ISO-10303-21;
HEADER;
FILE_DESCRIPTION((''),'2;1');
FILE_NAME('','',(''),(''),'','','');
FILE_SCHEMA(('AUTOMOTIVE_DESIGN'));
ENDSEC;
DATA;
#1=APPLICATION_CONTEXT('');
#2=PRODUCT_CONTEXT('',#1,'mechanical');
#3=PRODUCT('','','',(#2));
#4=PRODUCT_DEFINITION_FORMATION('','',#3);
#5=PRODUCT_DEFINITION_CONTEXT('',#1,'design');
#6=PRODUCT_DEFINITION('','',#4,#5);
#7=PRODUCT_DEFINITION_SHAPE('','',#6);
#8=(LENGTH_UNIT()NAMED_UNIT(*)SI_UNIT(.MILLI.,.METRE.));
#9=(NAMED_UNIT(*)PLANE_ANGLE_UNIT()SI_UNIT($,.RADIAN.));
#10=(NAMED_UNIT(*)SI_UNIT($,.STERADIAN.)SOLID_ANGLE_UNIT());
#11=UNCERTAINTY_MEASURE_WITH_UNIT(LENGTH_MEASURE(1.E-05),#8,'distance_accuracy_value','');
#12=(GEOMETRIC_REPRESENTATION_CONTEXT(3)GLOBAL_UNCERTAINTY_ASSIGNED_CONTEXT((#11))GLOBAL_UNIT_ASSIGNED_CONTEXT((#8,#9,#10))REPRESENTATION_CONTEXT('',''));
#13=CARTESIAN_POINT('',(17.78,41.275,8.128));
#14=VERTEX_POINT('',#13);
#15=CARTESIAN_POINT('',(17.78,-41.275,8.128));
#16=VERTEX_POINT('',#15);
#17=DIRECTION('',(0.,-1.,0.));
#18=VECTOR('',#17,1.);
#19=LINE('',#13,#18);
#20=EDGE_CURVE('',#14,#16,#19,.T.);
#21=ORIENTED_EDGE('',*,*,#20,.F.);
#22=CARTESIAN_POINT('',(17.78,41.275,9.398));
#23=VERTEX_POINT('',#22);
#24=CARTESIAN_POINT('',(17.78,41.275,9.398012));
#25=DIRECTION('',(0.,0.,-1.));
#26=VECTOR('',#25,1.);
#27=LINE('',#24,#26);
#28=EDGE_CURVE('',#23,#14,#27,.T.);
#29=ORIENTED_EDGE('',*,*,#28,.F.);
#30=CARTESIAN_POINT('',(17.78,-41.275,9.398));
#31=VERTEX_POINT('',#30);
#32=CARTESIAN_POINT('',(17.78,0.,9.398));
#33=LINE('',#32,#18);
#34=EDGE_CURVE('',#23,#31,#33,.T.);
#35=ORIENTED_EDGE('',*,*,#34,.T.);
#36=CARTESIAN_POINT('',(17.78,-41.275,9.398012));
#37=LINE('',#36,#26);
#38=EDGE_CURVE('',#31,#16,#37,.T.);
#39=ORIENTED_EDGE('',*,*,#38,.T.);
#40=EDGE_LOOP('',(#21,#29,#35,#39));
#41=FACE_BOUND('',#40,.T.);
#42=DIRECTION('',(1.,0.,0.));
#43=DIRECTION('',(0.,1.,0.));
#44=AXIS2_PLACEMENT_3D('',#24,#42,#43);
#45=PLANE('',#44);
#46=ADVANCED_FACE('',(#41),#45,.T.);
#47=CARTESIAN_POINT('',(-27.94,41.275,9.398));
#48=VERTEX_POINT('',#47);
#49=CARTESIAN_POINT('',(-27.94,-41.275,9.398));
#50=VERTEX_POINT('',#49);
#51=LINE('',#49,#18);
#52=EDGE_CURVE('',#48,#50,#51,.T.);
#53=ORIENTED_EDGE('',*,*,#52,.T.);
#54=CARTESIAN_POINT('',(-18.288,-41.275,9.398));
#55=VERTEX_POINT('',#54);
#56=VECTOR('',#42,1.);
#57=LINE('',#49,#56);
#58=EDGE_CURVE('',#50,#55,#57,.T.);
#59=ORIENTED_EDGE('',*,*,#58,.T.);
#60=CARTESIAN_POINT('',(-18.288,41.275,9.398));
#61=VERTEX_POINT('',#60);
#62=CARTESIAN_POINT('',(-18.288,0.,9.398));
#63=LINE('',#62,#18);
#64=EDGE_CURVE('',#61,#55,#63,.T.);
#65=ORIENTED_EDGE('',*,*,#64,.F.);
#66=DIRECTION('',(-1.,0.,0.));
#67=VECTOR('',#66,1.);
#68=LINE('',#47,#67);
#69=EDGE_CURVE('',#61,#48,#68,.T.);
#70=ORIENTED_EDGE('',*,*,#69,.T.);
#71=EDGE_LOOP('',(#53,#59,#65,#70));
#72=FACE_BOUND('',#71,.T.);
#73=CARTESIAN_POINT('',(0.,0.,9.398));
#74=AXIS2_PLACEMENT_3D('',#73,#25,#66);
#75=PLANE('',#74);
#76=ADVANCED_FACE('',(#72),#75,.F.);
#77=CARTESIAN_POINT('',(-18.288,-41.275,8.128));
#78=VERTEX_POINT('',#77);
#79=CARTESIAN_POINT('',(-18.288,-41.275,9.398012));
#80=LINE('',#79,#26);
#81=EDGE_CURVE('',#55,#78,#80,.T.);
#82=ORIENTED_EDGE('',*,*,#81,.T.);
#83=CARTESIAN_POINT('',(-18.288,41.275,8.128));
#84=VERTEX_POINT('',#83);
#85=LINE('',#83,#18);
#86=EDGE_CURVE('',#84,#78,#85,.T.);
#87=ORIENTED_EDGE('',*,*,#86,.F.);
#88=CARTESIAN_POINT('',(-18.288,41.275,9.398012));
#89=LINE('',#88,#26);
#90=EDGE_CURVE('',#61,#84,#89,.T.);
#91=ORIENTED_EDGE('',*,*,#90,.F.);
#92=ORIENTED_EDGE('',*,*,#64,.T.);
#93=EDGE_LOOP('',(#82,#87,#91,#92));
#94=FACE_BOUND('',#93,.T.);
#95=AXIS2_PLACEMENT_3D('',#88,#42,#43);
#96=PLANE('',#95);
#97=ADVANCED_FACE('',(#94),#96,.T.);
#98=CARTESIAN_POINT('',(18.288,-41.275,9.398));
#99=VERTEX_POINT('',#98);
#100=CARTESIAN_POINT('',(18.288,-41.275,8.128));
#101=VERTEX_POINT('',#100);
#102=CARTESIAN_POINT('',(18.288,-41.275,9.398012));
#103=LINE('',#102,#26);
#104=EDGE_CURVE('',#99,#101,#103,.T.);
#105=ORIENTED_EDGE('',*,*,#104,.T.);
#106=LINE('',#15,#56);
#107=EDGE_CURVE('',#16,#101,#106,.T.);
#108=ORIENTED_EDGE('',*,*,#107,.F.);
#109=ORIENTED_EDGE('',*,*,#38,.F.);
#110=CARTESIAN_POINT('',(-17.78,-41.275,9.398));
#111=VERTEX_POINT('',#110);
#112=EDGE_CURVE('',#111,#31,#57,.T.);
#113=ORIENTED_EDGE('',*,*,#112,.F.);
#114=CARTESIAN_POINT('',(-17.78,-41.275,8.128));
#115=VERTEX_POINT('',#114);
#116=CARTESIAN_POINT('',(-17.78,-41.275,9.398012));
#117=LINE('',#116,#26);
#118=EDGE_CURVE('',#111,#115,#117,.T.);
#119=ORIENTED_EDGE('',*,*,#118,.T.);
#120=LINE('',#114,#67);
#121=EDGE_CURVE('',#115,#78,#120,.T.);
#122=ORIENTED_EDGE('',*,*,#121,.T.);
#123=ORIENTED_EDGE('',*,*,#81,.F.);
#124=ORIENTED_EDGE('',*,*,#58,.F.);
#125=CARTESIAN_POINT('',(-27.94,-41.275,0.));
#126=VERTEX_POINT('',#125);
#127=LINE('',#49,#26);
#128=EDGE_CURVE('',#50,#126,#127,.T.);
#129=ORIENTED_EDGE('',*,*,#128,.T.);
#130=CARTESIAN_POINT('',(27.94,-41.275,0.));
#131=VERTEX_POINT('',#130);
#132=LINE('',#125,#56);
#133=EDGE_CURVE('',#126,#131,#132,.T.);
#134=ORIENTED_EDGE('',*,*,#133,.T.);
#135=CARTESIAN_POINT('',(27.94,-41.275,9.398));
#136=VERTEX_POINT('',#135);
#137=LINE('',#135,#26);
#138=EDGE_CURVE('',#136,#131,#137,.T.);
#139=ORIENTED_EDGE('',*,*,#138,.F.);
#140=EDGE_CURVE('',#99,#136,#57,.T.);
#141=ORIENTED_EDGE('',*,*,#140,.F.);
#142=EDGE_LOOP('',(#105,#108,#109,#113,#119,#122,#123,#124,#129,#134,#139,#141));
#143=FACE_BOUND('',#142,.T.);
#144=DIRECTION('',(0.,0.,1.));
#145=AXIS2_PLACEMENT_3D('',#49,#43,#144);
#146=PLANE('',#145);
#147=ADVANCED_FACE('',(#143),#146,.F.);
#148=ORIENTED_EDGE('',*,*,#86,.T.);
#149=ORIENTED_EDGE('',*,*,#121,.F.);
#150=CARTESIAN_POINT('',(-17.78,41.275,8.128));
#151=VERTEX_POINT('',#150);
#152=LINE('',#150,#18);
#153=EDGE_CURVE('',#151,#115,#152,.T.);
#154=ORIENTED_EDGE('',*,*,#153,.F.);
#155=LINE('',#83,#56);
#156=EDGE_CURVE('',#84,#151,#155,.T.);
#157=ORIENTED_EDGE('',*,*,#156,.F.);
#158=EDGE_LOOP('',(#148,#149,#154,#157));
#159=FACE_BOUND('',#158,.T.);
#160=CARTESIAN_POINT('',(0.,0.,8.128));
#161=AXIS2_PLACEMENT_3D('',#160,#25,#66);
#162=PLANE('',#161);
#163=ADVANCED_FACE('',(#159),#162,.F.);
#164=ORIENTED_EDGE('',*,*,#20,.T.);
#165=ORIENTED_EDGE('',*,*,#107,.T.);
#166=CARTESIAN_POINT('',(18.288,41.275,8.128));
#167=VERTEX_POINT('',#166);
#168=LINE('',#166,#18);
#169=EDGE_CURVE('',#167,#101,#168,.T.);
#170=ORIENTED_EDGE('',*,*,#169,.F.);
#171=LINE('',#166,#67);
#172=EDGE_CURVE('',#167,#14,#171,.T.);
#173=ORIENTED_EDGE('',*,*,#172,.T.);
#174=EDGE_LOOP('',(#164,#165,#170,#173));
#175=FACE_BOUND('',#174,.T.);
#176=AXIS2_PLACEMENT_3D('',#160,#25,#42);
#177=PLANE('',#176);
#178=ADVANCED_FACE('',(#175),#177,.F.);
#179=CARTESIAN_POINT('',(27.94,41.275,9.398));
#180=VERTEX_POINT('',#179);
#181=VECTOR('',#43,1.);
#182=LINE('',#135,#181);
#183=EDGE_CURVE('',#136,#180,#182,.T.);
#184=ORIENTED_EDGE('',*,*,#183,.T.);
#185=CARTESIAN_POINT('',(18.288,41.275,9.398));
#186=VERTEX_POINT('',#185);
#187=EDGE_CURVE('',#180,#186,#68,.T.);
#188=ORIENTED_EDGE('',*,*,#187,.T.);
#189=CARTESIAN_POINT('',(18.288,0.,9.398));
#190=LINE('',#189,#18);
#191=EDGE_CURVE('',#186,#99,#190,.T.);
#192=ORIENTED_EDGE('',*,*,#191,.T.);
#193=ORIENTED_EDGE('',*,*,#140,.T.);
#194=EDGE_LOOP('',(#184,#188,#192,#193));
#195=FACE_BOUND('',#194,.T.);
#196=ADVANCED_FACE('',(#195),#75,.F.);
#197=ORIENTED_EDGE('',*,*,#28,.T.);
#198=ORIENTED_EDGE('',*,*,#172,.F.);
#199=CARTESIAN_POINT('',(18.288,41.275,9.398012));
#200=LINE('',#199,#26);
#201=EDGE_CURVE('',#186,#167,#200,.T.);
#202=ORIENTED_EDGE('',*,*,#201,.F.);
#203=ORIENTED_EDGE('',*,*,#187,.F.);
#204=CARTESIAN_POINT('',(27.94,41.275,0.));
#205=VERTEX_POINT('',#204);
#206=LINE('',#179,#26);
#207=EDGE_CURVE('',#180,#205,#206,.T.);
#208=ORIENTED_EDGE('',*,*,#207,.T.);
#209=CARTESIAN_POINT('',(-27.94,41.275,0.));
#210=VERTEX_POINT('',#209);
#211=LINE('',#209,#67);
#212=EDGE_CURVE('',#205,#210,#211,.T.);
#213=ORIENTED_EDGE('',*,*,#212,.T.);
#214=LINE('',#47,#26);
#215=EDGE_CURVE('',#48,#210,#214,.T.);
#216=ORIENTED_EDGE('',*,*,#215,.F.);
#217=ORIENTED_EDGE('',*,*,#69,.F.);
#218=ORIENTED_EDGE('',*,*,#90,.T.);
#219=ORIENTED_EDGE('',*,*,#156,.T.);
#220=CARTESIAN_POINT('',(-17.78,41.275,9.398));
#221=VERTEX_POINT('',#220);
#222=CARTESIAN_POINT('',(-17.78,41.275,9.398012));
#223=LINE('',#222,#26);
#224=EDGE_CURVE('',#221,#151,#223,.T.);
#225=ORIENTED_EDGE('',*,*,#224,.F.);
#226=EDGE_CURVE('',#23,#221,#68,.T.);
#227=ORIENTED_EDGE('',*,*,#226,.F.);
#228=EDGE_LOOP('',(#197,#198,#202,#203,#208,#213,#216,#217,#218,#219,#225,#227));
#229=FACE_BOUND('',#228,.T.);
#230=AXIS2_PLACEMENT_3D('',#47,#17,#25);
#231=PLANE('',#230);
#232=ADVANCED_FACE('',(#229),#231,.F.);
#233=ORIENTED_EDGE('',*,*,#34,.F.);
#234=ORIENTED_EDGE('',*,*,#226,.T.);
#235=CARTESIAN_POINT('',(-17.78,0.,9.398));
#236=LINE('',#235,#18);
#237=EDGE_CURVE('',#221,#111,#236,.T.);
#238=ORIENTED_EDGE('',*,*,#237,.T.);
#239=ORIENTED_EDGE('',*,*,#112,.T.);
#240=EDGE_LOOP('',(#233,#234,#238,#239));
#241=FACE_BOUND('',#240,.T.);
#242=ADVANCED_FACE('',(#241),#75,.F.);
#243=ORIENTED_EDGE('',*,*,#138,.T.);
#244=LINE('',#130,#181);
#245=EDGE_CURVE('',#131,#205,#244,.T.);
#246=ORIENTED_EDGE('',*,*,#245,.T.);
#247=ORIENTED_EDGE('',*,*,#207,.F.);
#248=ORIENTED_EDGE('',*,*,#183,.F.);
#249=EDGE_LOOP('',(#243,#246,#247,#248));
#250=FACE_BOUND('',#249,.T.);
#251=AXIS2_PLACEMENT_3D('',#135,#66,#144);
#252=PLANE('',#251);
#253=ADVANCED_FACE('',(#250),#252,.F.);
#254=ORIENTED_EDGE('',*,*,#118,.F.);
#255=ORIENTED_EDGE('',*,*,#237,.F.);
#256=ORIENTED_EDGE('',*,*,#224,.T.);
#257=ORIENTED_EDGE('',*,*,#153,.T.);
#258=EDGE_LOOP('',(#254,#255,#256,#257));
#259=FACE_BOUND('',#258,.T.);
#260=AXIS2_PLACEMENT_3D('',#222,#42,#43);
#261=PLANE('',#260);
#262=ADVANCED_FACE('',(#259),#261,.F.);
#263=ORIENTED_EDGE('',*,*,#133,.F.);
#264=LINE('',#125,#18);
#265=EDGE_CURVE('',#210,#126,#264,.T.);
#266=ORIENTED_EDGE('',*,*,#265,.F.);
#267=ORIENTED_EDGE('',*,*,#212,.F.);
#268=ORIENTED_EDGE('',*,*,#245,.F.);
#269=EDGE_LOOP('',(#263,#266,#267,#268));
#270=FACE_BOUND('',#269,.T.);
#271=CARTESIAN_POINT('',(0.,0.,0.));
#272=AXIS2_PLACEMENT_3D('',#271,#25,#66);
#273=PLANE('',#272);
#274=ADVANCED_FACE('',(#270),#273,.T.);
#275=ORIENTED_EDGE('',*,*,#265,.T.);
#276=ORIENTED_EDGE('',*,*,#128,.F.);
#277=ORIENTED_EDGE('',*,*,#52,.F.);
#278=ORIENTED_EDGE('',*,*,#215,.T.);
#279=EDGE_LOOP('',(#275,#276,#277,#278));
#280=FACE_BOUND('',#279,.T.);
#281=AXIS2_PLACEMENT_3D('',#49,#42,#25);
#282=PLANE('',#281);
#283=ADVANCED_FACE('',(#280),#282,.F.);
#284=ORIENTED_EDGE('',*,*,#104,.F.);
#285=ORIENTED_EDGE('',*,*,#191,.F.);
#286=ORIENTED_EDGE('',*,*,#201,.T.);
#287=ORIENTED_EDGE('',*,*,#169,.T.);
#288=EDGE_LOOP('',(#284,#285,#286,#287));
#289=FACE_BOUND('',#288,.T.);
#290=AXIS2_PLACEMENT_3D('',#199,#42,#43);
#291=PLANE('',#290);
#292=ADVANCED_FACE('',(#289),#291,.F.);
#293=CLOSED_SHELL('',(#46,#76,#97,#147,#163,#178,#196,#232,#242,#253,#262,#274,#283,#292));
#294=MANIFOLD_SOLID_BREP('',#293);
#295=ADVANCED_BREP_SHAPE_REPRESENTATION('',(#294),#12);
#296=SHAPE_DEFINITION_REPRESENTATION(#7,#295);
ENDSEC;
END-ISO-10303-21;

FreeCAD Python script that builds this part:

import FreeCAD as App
import Part
import Sketcher
Q = App.Units.Quantity

doc = App.newDocument("Part")
body = doc.addObject("PartDesign::Body", "Body")

# Sketch on XY plane
sketch1 = doc.addObject("Sketcher::SketchObject", "Sketch")
body.addObject(sketch1)
sketch1.AttachmentSupport = (doc.XY_Plane, [""])
sketch1.MapMode = "FlatFace"
sketch1.addGeometry([
    Part.LineSegment(App.Vector(-28, 41, 0), App.Vector(-28, -41, 0)),
    Part.LineSegment(App.Vector(-28, -41, 0), App.Vector(28, -41, 0)),
    Part.LineSegment(App.Vector(28, -41, 0), App.Vector(28, 41, 0)),
    Part.LineSegment(App.Vector(28, 41, 0), App.Vector(-28, 41, 0)),
], False)
sketch1.addConstraint([
    Sketcher.Constraint("Coincident", 0, 2, 1, 1),
    Sketcher.Constraint("Coincident", 1, 2, 2, 1),
    Sketcher.Constraint("Coincident", 2, 2, 3, 1),
    Sketcher.Constraint("Coincident", 3, 2, 0, 1),
    Sketcher.Constraint("Vertical", 0),
    Sketcher.Constraint("Horizontal", 1),
    Sketcher.Constraint("Vertical", 2),
    Sketcher.Constraint("Horizontal", 3),
    Sketcher.Constraint("Symmetric", 0, 2, 2, 2, -1, 1),
    Sketcher.Constraint("DistanceX", 1, 1, 1, 2, Q("2.2 in")),
    Sketcher.Constraint("DistanceY", 0, 2, 0, 1, Q("3.25 in")),
])
pad1 = doc.addObject("PartDesign::Pad", "Pad")
body.addObject(pad1)
pad1.Profile = sketch1
pad1.Length = Q("0.37 in")

# Sketch on XY plane
sketch2 = doc.addObject("Sketcher::SketchObject", "Sketch001")
body.addObject(sketch2)
sketch2.AttachmentSupport = (doc.XY_Plane, [""])
sketch2.MapMode = "FlatFace"
sketch2.AttachmentOffset = App.Placement(App.Vector(0, 0, 0.32 * 25.4), App.Rotation())
sketch2.addGeometry([
    Part.LineSegment(App.Vector(-18.3, 41.3, 0), App.Vector(-18.3, -41.3, 0)),
    Part.LineSegment(App.Vector(-18.3, -41.3, 0), App.Vector(-17.8, -41.3, 0)),
    Part.LineSegment(App.Vector(-17.8, -41.3, 0), App.Vector(-17.8, 41.3, 0)),
    Part.LineSegment(App.Vector(-17.8, 41.3, 0), App.Vector(-18.3, 41.3, 0)),
], False)
sketch2.addConstraint([
    Sketcher.Constraint("Coincident", 0, 2, 1, 1),
    Sketcher.Constraint("Coincident", 1, 2, 2, 1),
    Sketcher.Constraint("Coincident", 2, 2, 3, 1),
    Sketcher.Constraint("Coincident", 3, 2, 0, 1),
    Sketcher.Constraint("Vertical", 0),
    Sketcher.Constraint("Horizontal", 1),
    Sketcher.Constraint("Vertical", 2),
    Sketcher.Constraint("Horizontal", 3),
    Sketcher.Constraint("DistanceX", 1, 1, 1, 2, Q("0.02 in")),
    Sketcher.Constraint("DistanceY", 0, 2, 0, 1, Q("3.25 in")),
    Sketcher.Constraint("DistanceX", 1, 2, -1, 1, Q("0.7 in")),
    Sketcher.Constraint("DistanceY", 0, 2, -1, 1, Q("1.625 in")),
])
pocket1 = doc.addObject("PartDesign::Pocket", "Pocket")
body.addObject(pocket1)
pocket1.Profile = sketch2
pocket1.Length = 52.990722
pocket1.Reversed = True
doc.recompute()

mirrored = doc.addObject("PartDesign::Mirrored", "Mirrored")
body.addObject(mirrored)
mirrored.Originals = [pocket1]
mirrored.MirrorPlane = (doc.YZ_Plane, [""])
body.Tip = mirrored

doc.recompute()
